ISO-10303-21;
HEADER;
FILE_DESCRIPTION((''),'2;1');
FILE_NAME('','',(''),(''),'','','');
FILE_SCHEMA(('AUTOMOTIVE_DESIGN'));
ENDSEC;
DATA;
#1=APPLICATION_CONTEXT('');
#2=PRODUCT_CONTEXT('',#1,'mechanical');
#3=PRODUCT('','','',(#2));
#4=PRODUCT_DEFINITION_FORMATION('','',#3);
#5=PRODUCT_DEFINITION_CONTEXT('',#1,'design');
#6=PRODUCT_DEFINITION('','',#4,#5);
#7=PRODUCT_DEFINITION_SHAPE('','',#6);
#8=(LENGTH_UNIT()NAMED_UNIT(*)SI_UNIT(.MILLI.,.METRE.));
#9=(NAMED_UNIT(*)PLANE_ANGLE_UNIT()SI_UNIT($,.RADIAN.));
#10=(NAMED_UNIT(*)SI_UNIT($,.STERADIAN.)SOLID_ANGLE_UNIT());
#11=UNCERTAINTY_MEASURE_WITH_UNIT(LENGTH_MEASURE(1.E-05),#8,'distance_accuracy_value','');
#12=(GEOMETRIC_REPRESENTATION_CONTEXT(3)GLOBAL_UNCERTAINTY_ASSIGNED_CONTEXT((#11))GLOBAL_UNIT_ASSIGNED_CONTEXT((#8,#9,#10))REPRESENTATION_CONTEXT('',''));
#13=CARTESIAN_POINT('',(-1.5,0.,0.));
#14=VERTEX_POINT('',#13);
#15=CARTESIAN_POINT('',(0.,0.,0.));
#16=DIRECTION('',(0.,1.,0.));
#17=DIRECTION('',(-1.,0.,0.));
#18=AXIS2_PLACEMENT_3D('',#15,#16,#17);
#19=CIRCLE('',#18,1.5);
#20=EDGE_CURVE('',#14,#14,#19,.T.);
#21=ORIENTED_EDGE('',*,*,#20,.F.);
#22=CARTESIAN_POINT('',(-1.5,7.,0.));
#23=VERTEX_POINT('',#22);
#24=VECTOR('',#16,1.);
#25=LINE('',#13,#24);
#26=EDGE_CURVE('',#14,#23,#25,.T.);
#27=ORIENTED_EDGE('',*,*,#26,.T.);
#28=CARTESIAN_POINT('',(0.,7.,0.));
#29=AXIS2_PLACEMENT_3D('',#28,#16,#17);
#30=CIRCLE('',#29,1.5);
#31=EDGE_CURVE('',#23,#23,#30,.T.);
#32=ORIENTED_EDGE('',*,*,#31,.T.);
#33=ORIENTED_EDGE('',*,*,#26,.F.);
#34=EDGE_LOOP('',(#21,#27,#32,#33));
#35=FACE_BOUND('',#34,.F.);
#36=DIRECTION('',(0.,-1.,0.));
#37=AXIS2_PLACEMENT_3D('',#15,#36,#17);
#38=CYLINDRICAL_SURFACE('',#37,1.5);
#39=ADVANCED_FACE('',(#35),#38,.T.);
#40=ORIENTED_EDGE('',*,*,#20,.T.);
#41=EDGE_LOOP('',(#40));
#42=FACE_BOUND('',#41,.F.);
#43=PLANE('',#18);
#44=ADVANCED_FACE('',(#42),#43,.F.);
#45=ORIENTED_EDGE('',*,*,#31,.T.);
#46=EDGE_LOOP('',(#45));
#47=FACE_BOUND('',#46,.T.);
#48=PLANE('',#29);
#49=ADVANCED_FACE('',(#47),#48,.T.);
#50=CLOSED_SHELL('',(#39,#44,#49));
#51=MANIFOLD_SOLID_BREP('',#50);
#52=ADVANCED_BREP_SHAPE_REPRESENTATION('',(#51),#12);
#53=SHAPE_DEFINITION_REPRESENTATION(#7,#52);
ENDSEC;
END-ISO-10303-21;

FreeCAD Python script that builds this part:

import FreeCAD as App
import Part
import Sketcher
Q = App.Units.Quantity

doc = App.newDocument("Part")
body = doc.addObject("PartDesign::Body", "Body")

# Sketch on XZ plane
sketch1 = body.newObject("Sketcher::SketchObject", "Sketch")
sketch1.AttachmentSupport = (doc.getObject("XZ_Plane"), [""])
sketch1.MapMode = "FlatFace"
sketch1.addGeometry(Part.Circle(App.Vector(0, 0, 0), App.Vector(0, 0, 1), 1.5), False)
sketch1.addConstraint(Sketcher.Constraint("Coincident", 0, 3, -1, 1))
sketch1.addConstraint(Sketcher.Constraint("Diameter", 0, Q("3 mm")))
pad1 = body.newObject("PartDesign::Pad", "Pad")
pad1.Profile = sketch1
pad1.Length = 7
pad1.Reversed = True

doc.recompute()
